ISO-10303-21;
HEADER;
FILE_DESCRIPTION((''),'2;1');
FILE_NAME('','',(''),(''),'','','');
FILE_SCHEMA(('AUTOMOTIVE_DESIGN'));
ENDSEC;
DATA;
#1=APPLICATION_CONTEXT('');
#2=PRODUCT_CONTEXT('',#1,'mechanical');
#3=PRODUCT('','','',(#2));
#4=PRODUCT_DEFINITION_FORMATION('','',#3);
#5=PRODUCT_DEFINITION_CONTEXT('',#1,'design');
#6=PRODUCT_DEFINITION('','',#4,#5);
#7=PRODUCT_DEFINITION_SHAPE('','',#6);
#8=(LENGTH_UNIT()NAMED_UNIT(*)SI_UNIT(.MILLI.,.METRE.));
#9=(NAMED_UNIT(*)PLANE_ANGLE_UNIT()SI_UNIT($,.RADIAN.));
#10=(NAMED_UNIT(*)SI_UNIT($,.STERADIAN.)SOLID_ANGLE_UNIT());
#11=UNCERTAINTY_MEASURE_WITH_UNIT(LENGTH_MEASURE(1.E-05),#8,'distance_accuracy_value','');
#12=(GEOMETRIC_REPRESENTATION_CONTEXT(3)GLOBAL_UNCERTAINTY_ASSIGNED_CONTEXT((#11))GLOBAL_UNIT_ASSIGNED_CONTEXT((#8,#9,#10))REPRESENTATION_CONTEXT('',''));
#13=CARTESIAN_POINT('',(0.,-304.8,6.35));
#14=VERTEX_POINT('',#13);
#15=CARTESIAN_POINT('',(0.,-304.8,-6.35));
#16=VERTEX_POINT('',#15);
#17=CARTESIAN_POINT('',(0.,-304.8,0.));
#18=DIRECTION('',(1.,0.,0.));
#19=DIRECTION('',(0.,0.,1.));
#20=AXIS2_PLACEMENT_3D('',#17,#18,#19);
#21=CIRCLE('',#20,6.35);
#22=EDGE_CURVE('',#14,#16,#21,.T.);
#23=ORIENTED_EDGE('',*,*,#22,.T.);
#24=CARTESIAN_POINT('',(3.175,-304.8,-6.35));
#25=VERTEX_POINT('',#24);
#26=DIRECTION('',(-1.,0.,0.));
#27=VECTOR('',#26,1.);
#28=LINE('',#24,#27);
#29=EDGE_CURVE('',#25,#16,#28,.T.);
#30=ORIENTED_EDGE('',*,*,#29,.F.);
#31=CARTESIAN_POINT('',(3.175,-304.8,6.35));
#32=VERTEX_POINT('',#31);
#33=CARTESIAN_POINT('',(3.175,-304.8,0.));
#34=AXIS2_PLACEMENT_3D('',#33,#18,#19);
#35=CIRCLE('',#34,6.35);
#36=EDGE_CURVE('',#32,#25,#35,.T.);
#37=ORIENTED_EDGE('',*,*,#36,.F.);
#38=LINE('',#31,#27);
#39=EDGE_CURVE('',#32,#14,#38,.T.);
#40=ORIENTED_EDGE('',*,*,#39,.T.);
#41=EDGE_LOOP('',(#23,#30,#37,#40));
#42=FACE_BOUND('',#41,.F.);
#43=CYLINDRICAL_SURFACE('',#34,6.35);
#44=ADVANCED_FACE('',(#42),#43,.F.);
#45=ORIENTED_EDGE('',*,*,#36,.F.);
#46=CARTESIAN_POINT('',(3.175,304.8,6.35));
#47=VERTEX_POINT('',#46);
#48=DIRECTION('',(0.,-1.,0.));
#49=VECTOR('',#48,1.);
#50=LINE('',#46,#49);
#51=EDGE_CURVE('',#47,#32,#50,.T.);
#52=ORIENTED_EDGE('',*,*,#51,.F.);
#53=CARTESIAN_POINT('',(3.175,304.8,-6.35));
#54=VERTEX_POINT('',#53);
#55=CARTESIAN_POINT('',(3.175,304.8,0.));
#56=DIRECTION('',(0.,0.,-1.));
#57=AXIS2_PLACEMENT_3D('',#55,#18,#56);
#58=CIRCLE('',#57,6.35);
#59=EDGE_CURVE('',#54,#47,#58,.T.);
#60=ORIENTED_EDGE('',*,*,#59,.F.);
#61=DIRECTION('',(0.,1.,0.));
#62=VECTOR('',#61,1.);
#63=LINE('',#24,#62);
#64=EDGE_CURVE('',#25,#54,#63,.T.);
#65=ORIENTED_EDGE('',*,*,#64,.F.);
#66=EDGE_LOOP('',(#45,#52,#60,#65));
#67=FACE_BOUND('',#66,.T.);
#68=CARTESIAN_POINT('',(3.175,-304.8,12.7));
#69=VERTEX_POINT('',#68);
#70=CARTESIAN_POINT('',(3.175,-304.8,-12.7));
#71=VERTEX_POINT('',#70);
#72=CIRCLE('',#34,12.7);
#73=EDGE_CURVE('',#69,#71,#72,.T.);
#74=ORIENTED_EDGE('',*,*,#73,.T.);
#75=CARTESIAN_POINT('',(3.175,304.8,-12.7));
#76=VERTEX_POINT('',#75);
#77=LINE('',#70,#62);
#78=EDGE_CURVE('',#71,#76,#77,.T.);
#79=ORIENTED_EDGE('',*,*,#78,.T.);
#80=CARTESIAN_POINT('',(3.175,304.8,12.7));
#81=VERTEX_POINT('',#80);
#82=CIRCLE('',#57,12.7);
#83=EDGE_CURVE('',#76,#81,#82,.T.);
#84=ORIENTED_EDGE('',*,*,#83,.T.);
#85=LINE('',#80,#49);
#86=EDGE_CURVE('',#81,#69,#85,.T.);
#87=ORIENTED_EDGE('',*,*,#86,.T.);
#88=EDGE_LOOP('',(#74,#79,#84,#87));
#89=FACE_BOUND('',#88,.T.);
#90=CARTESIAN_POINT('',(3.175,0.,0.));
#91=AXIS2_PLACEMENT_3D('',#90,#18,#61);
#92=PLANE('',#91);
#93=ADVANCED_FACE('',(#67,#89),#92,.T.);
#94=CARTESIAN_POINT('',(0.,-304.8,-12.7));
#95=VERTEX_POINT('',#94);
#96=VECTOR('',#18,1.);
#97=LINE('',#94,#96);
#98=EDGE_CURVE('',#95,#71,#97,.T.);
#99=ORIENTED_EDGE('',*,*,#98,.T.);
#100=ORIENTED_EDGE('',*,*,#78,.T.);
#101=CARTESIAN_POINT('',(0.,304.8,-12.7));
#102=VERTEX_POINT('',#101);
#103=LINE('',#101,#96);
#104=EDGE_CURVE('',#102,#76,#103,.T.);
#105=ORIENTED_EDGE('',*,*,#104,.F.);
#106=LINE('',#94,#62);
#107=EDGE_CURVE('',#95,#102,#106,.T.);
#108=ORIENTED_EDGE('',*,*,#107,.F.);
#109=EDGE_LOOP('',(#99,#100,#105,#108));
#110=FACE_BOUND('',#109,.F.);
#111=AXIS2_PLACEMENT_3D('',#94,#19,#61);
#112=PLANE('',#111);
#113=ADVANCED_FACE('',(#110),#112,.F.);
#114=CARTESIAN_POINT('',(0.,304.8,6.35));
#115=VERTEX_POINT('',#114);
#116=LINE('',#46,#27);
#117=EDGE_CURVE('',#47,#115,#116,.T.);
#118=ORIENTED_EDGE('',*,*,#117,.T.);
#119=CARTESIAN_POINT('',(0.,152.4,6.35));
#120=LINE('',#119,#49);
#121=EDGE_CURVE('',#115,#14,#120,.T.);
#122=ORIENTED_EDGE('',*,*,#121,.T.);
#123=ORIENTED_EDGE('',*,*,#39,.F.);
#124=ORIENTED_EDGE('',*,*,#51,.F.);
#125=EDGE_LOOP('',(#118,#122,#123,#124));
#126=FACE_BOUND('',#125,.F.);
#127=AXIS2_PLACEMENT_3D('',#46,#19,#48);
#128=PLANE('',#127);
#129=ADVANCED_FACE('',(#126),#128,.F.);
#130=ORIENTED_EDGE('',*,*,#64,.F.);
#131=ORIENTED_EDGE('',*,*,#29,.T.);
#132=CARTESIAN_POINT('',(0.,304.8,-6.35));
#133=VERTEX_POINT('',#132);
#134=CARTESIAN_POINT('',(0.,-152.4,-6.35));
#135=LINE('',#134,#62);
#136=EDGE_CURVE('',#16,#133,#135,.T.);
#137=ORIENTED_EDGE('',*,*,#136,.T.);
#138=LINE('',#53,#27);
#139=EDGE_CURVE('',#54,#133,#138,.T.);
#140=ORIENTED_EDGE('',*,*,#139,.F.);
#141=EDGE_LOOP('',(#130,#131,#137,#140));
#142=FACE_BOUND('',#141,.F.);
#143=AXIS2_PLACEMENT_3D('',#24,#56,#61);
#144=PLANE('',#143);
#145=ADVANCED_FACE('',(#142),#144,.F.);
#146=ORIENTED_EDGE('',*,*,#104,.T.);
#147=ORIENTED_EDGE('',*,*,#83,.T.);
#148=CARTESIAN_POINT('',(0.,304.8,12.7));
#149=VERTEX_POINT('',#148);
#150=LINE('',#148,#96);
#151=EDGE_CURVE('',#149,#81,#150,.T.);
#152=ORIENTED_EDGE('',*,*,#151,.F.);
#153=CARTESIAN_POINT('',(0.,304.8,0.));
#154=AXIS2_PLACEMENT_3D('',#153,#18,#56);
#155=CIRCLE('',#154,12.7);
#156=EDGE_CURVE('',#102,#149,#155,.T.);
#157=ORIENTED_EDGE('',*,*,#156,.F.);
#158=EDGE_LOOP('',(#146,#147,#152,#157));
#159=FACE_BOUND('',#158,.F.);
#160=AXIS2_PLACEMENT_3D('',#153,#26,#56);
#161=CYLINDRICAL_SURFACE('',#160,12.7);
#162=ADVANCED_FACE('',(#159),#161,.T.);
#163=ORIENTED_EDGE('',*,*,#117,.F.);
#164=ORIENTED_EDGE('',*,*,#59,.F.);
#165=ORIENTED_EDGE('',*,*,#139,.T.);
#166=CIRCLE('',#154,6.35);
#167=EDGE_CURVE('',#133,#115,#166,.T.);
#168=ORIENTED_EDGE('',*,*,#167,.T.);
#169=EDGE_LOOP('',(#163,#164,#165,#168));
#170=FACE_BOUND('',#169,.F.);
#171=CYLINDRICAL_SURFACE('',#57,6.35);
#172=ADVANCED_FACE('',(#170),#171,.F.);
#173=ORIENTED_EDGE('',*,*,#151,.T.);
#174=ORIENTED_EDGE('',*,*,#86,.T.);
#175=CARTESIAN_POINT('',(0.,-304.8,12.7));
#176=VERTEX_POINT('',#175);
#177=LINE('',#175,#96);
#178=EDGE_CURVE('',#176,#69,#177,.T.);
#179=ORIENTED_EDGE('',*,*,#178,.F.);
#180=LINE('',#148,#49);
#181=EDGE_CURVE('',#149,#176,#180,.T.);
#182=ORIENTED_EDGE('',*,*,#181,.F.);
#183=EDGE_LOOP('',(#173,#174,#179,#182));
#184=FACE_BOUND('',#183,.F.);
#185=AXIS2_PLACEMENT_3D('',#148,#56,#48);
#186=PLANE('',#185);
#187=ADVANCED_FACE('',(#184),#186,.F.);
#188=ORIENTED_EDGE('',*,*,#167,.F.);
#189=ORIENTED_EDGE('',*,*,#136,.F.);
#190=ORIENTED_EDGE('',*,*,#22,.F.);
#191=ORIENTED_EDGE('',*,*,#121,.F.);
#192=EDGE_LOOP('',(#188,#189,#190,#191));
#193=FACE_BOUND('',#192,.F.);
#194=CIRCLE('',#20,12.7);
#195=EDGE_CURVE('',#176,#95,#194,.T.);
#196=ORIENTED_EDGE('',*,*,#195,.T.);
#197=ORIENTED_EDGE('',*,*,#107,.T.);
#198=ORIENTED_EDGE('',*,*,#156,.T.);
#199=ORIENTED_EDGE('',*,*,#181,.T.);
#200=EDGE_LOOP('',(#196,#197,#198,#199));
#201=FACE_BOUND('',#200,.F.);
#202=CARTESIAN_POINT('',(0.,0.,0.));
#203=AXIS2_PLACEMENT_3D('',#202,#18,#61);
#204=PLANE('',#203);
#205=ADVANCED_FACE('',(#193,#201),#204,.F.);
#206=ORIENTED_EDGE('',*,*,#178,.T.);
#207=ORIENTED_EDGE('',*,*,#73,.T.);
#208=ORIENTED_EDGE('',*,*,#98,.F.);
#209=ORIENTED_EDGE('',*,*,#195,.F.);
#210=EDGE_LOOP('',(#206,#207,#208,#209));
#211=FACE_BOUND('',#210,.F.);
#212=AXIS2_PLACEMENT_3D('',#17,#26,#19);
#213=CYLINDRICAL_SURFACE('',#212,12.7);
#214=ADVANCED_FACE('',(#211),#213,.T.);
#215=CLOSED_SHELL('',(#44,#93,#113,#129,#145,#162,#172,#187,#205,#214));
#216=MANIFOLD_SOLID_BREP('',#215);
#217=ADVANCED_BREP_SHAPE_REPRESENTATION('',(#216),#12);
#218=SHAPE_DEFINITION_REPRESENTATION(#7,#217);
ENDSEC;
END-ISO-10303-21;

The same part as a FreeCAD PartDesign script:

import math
import FreeCAD as App
import Part
import Sketcher
from FreeCAD import Vector
Q = App.Units.Quantity

doc = App.newDocument("Part")
body = doc.addObject("PartDesign::Body", "Body")

sketch1 = body.newObject("Sketcher::SketchObject", "Sketch")
sketch1.AttachmentSupport = (doc.getObject("YZ_Plane"), [""])
sketch1.MapMode = "FlatFace"
sketch1.addGeometry([
    Part.LineSegment(Vector(304.8, 12.7, 0), Vector(-304.8, 12.7, 0)),
    Part.ArcOfCircle(Part.Circle(Vector(-304.8, 0, 0), Vector(0, 0, 1), 12.7), math.radians(90), math.radians(270)),
    Part.LineSegment(Vector(-304.8, -12.7, 0), Vector(304.8, -12.7, 0)),
    Part.ArcOfCircle(Part.Circle(Vector(304.8, 0, 0), Vector(0, 0, 1), 12.7), math.radians(-90), math.radians(90)),
], False)
sketch1.addConstraint([
    Sketcher.Constraint("Tangent", 0, 2, 1, 1),
    Sketcher.Constraint("Tangent", 1, 2, 2, 1),
    Sketcher.Constraint("Tangent", 2, 2, 3, 1),
    Sketcher.Constraint("Tangent", 3, 2, 0, 1),
    Sketcher.Constraint("Horizontal", 0),
    Sketcher.Constraint("Horizontal", 2),
    Sketcher.Constraint("Symmetric", 1, 3, 3, 3, -1, 1),
    Sketcher.Constraint("Radius", 1, Q("0.5 in")),
    Sketcher.Constraint("DistanceX", 0, 2, 0, 1, Q("24 in")),
])
pad1 = body.newObject("PartDesign::Pad", "Pad")
pad1.Profile = sketch1
pad1.Length = Q("0.125 in")

sketch2 = body.newObject("Sketcher::SketchObject", "Sketch001")
sketch2.AttachmentSupport = (doc.getObject("YZ_Plane"), [""])
sketch2.MapMode = "FlatFace"
sketch2.AttachmentOffset = App.Placement(Vector(0, 0, 0.125 * 25.4), App.Rotation())
sketch2.addGeometry([
    Part.ArcOfCircle(Part.Circle(Vector(-304.8, 0, 0), Vector(0, 0, 1), 6.35), math.radians(90), math.radians(270)),
    Part.LineSegment(Vector(-304.8, -6.35, 0), Vector(304.8, -6.35, 0)),
    Part.ArcOfCircle(Part.Circle(Vector(304.8, 0, 0), Vector(0, 0, 1), 6.35), math.radians(-90), math.radians(90)),
    Part.LineSegment(Vector(304.8, 6.35, 0), Vector(-304.8, 6.35, 0)),
], False)
sketch2.addConstraint([
    Sketcher.Constraint("Tangent", 0, 2, 1, 1),
    Sketcher.Constraint("Tangent", 1, 2, 2, 1),
    Sketcher.Constraint("Tangent", 2, 2, 3, 1),
    Sketcher.Constraint("Tangent", 3, 2, 0, 1),
    Sketcher.Constraint("Horizontal", 1),
    Sketcher.Constraint("Horizontal", 3),
    Sketcher.Constraint("Symmetric", 0, 3, 2, 3, -1, 1),
    Sketcher.Constraint("DistanceX", 1, 1, 1, 2, Q("24 in")),
    Sketcher.Constraint("Radius", 0, Q("0.25 in")),
])
pocket1 = body.newObject("PartDesign::Pocket", "Pocket")
pocket1.Profile = sketch2
pocket1.Length = Q("8.26 in")

doc.recompute()
